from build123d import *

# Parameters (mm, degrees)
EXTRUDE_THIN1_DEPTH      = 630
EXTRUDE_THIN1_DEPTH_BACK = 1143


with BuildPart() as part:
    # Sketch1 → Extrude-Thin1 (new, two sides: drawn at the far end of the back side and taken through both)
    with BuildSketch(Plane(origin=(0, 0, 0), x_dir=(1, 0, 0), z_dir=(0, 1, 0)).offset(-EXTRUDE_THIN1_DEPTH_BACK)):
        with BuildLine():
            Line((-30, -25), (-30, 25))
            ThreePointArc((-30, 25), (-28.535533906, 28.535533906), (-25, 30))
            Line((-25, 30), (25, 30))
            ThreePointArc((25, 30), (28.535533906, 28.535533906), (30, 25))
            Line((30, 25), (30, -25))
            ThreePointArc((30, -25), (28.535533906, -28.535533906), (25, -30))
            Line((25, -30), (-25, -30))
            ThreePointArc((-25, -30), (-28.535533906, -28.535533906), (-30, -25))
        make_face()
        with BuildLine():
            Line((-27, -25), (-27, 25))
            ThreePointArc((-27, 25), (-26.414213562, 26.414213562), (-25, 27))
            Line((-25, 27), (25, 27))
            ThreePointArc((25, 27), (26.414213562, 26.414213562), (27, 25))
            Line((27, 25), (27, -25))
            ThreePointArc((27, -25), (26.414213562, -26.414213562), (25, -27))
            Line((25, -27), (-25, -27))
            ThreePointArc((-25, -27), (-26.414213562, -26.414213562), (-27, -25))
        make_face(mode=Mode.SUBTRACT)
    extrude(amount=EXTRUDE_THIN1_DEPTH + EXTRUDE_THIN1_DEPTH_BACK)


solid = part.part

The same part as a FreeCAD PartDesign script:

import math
import FreeCAD as App
import Part
import Sketcher

V = App.Vector

doc = App.newDocument("Part")
body = doc.addObject("PartDesign::Body", "Body")

# Sketch on XZ plane
sketch1 = doc.addObject("Sketcher::SketchObject", "Sketch")
body.addObject(sketch1)
sketch1.AttachmentSupport = (doc.XZ_Plane, [""])
sketch1.MapMode = "FlatFace"
sketch1.addGeometry([
    Part.LineSegment(V(-30, -25, 0), V(-30, 25, 0)),  # 0
    Part.ArcOfCircle(Part.Circle(V(-25, 25, 0), V(0, 0, 1), 5), math.radians(90), math.radians(180)),  # 1
    Part.LineSegment(V(-25, 30, 0), V(25, 30, 0)),  # 2
    Part.ArcOfCircle(Part.Circle(V(25, 25, 0), V(0, 0, 1), 5), math.radians(0), math.radians(90)),  # 3
    Part.LineSegment(V(30, 25, 0), V(30, -25, 0)),  # 4
    Part.ArcOfCircle(Part.Circle(V(25, -25, 0), V(0, 0, 1), 5), math.radians(-90), math.radians(0)),  # 5
    Part.LineSegment(V(25, -30, 0), V(-25, -30, 0)),  # 6
    Part.ArcOfCircle(Part.Circle(V(-25, -25, 0), V(0, 0, 1), 5), math.radians(180), math.radians(270)),  # 7
    Part.LineSegment(V(-27, 25, 0), V(-27, -25, 0)),  # 8
    Part.ArcOfCircle(Part.Circle(V(-25, -25, 0), V(0, 0, 1), 2), math.radians(-180), math.radians(-90)),  # 9
    Part.LineSegment(V(-25, -27, 0), V(25, -27, 0)),  # 10
    Part.ArcOfCircle(Part.Circle(V(25, -25, 0), V(0, 0, 1), 2), math.radians(-90), math.radians(0)),  # 11
    Part.LineSegment(V(27, -25, 0), V(27, 25, 0)),  # 12
    Part.ArcOfCircle(Part.Circle(V(25, 25, 0), V(0, 0, 1), 2), math.radians(0), math.radians(90)),  # 13
    Part.LineSegment(V(25, 27, 0), V(-25, 27, 0)),  # 14
    Part.ArcOfCircle(Part.Circle(V(-25, 25, 0), V(0, 0, 1), 2), math.radians(90), math.radians(180)),  # 15
], False)
sketch1.addConstraint([
    Sketcher.Constraint("Tangent", 0, 2, 1, 2),
    Sketcher.Constraint("Tangent", 1, 1, 2, 1),
    Sketcher.Constraint("Tangent", 2, 2, 3, 2),
    Sketcher.Constraint("Tangent", 3, 1, 4, 1),
    Sketcher.Constraint("Tangent", 4, 2, 5, 2),
    Sketcher.Constraint("Tangent", 5, 1, 6, 1),
    Sketcher.Constraint("Tangent", 6, 2, 7, 2),
    Sketcher.Constraint("Tangent", 7, 1, 0, 1),
    Sketcher.Constraint("Tangent", 8, 2, 9, 1),
    Sketcher.Constraint("Tangent", 9, 2, 10, 1),
    Sketcher.Constraint("Tangent", 10, 2, 11, 1),
    Sketcher.Constraint("Tangent", 11, 2, 12, 1),
    Sketcher.Constraint("Tangent", 12, 2, 13, 1),
    Sketcher.Constraint("Tangent", 13, 2, 14, 1),
    Sketcher.Constraint("Tangent", 14, 2, 15, 1),
    Sketcher.Constraint("Tangent", 15, 2, 8, 1),
    Sketcher.Constraint("Vertical", 0),
    Sketcher.Constraint("Horizontal", 2),
    Sketcher.Constraint("Vertical", 4),
    Sketcher.Constraint("Horizontal", 6),
    Sketcher.Constraint("Vertical", 8),
    Sketcher.Constraint("Horizontal", 10),
    Sketcher.Constraint("Vertical", 12),
    Sketcher.Constraint("Horizontal", 14),
    Sketcher.Constraint("Coincident", 9, 3, 7, 3),
    Sketcher.Constraint("Coincident", 11, 3, 5, 3),
    Sketcher.Constraint("Coincident", 13, 3, 3, 3),
    Sketcher.Constraint("Equal", 1, 3),
    Sketcher.Constraint("Equal", 3, 5),
    Sketcher.Constraint("Equal", 5, 7),
    Sketcher.Constraint("Equal", 13, 15),
    Sketcher.Constraint("Symmetric", 1, 3, 5, 3, -1, 1),
    Sketcher.Constraint("Equal", 14, 0),
    Sketcher.Constraint("Radius", 1, 5.0),
    Sketcher.Constraint("Radius", 9, 2.0),
    Sketcher.Constraint("DistanceX", 2, 1, 2, 2, 50.0),
])
pad1 = doc.addObject("PartDesign::Pad", "Pad")
body.addObject(pad1)
pad1.Profile = sketch1
pad1.Type = "TwoLengths"
pad1.Length = 630
pad1.Length2 = 1143
pad1.Reversed = True

doc.recompute()
